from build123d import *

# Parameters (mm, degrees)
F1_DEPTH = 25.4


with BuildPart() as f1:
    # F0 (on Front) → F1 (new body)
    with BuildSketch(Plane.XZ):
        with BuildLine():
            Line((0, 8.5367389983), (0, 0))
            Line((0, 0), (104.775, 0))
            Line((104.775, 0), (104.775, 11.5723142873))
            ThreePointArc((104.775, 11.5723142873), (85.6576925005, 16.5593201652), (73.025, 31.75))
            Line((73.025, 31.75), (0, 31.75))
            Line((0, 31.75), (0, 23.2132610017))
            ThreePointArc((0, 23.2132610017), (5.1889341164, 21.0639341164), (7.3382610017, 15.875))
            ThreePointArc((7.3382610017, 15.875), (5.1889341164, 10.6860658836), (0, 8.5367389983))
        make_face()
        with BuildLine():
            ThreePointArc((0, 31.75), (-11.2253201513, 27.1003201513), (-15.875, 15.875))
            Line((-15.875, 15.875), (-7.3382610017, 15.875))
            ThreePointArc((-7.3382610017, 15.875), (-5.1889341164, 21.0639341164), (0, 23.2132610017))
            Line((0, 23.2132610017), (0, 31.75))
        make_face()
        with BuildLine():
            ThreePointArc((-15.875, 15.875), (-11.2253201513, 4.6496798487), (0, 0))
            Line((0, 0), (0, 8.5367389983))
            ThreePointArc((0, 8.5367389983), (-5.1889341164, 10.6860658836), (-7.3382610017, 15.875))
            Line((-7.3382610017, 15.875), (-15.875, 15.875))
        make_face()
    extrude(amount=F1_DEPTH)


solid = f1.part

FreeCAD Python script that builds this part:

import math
import FreeCAD as App
import Part
import Sketcher

V = App.Vector
Q = App.Units.Quantity

doc = App.newDocument("Part")
body = doc.addObject("PartDesign::Body", "Body")

# Sketch on XZ plane
sketch1 = body.newObject("Sketcher::SketchObject", "Sketch")
sketch1.AttachmentSupport = (doc.getObject("XZ_Plane"), [""])
sketch1.MapMode = "FlatFace"
sketch1.addGeometry(Part.LineSegment(V(0, 0, 0), V(105, 0, 0)), False)
sketch1.addGeometry(Part.LineSegment(V(105, 0, 0), V(105, 12, 0)), False)
sketch1.addGeometry(Part.ArcOfCircle(Part.Circle(V(103, 44, 0), V(0, 0, 1), 32), math.radians(-158), math.radians(-87)), False)
sketch1.addGeometry(Part.LineSegment(V(73, 32, 0), V(0, 32, 0)), False)
sketch1.addGeometry(Part.ArcOfCircle(Part.Circle(V(0, 16, 0), V(0, 0, 1), 16), math.radians(90), math.radians(180)), False)
sketch1.addGeometry(Part.ArcOfCircle(Part.Circle(V(0, 16, 0), V(0, 0, 1), 16), math.radians(180), math.radians(270)), False)
sketch1.addGeometry(Part.ArcOfCircle(Part.Circle(V(0, 16, 0), V(0, 0, 1), 7), math.radians(90), math.radians(180)), False)
sketch1.addGeometry(Part.ArcOfCircle(Part.Circle(V(0, 16, 0), V(0, 0, 1), 7), math.radians(0), math.radians(90)), False)
sketch1.addGeometry(Part.ArcOfCircle(Part.Circle(V(0, 16, 0), V(0, 0, 1), 7), math.radians(-90), math.radians(0)), False)
sketch1.addGeometry(Part.ArcOfCircle(Part.Circle(V(0, 16, 0), V(0, 0, 1), 7), math.radians(180), math.radians(270)), False)
sketch1.addConstraint(Sketcher.Constraint("Coincident", 0, 2, 1, 1))
sketch1.addConstraint(Sketcher.Constraint("Coincident", 1, 2, 2, 2))
sketch1.addConstraint(Sketcher.Constraint("Coincident", 2, 1, 3, 1))
sketch1.addConstraint(Sketcher.Constraint("Tangent", 3, 2, 4, 1))
sketch1.addConstraint(Sketcher.Constraint("Tangent", 4, 2, 5, 1))
sketch1.addConstraint(Sketcher.Constraint("Tangent", 5, 2, 0, 1))
sketch1.addConstraint(Sketcher.Constraint("Tangent", 6, 1, 7, 2))
sketch1.addConstraint(Sketcher.Constraint("Tangent", 7, 1, 8, 2))
sketch1.addConstraint(Sketcher.Constraint("Tangent", 8, 1, 9, 2))
sketch1.addConstraint(Sketcher.Constraint("Tangent", 9, 1, 6, 2))
sketch1.addConstraint(Sketcher.Constraint("Horizontal", 0))
sketch1.addConstraint(Sketcher.Constraint("Vertical", 1))
sketch1.addConstraint(Sketcher.Constraint("Horizontal", 3))
sketch1.addConstraint(Sketcher.Constraint("Coincident", 5, 2, -1, 1))
sketch1.addConstraint(Sketcher.Constraint("Coincident", 6, 3, 4, 3))
sketch1.addConstraint(Sketcher.Constraint("Equal", 4, 5))
sketch1.addConstraint(Sketcher.Constraint("Equal", 6, 7))
sketch1.addConstraint(Sketcher.Constraint("PointOnObject", 6, 1, -2))
sketch1.addConstraint(Sketcher.Constraint("PointOnObject", 8, 1, -2))
sketch1.addConstraint(Sketcher.Constraint("Horizontal", 9, 3, 4, 2))
sketch1.addConstraint(Sketcher.Constraint("Horizontal", 4, 2, 7, 1))
sketch1.addConstraint(Sketcher.Constraint("Horizontal", 7, 1, 9, 1))
sketch1.addConstraint(Sketcher.Constraint("Radius", 4, Q("0.625 in")))
sketch1.addConstraint(Sketcher.Constraint("DistanceX", 0, 1, 0, 2, Q("4.125 in")))
sketch1.addConstraint(Sketcher.Constraint("DistanceX", 3, 2, 3, 1, Q("2.875 in")))
sketch1.addConstraint(Sketcher.Constraint("Radius", 6, 7.338261))
sketch1.addConstraint(Sketcher.Constraint("Radius", 2, 32.286646))
sketch1.addConstraint(Sketcher.Constraint("DistanceY", 1, 1, 1, 2, 11.572314))
pad1 = body.newObject("PartDesign::Pad", "Pad")
pad1.Profile = sketch1
pad1.Length = Q("1 in")

doc.recompute()
